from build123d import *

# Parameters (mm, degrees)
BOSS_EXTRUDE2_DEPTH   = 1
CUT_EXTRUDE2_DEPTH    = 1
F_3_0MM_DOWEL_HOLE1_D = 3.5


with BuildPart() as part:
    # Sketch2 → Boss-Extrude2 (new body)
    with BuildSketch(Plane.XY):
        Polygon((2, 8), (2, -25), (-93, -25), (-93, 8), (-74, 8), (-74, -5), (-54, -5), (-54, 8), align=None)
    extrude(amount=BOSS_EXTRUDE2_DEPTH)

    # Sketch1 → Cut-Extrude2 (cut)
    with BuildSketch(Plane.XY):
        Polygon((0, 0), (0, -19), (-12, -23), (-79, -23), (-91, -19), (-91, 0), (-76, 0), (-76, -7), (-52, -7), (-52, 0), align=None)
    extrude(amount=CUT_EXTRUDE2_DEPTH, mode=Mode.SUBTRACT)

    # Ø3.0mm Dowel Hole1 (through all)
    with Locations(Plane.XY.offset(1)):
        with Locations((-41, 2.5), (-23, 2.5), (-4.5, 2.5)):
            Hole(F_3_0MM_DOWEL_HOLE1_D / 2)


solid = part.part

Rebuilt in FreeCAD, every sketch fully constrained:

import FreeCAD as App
import Part
import Sketcher

V = App.Vector
Q = App.Units.Quantity


def add_polygon(sketch, points):
    """Adds a closed chain of lines whose ends are joined by coincident constraints."""
    first, n = sketch.GeometryCount, len(points)
    for a, b in zip(points, points[1:] + points[:1]):
        sketch.addGeometry(Part.LineSegment(App.Vector(*a, 0), App.Vector(*b, 0)), False)
    for i in range(n):
        sketch.addConstraint(Sketcher.Constraint("Coincident", first + i, 2, first + (i + 1) % n, 1))

doc = App.newDocument("Part")
body = doc.addObject("PartDesign::Body", "Body")

# Sketch on XY plane
sketch1 = body.newObject("Sketcher::SketchObject", "Sketch")
sketch1.AttachmentSupport = (doc.getObject("XY_Plane"), [""])
sketch1.MapMode = "FlatFace"
add_polygon(sketch1, [(2, -25), (2, 8), (-54, 8), (-54, -5), (-74, -5), (-74, 8), (-93, 8), (-93, -25)])  # lines 0-7
sketch1.addConstraint(Sketcher.Constraint("Vertical", 0))
sketch1.addConstraint(Sketcher.Constraint("Horizontal", 1))
sketch1.addConstraint(Sketcher.Constraint("Vertical", 2))
sketch1.addConstraint(Sketcher.Constraint("Horizontal", 3))
sketch1.addConstraint(Sketcher.Constraint("Vertical", 4))
sketch1.addConstraint(Sketcher.Constraint("Horizontal", 5))
sketch1.addConstraint(Sketcher.Constraint("Vertical", 6))
sketch1.addConstraint(Sketcher.Constraint("Horizontal", 7))
sketch1.addConstraint(Sketcher.Constraint("Horizontal", 1, 2, 4, 2))
sketch1.addConstraint(Sketcher.Constraint("DistanceX", 1, 2, 1, 1, Q("56 mm")))
sketch1.addConstraint(Sketcher.Constraint("DistanceX", 3, 2, 3, 1, Q("20 mm")))
sketch1.addConstraint(Sketcher.Constraint("DistanceX", 5, 2, 5, 1, Q("19 mm")))
sketch1.addConstraint(Sketcher.Constraint("DistanceY", 0, 1, 0, 2, Q("33 mm")))
sketch1.addConstraint(Sketcher.Constraint("DistanceY", 2, 2, 2, 1, Q("13 mm")))
sketch1.addConstraint(Sketcher.Constraint("DistanceX", -1, 1, 0, 2, Q("2 mm")))
sketch1.addConstraint(Sketcher.Constraint("DistanceY", -1, 1, 0, 2, Q("8 mm")))
pad1 = body.newObject("PartDesign::Pad", "Pad")
pad1.Profile = sketch1
pad1.Length = 1

# Sketch on XY plane
sketch2 = body.newObject("Sketcher::SketchObject", "Sketch001")
sketch2.AttachmentSupport = (doc.getObject("XY_Plane"), [""])
sketch2.MapMode = "FlatFace"
add_polygon(sketch2, [(0, -19), (0, 0), (-52, 0), (-52, -7), (-76, -7), (-76, 0), (-91, 0), (-91, -19), (-79, -23), (-12, -23)])  # lines 0-9
sketch2.addConstraint(Sketcher.Constraint("Vertical", 0))
sketch2.addConstraint(Sketcher.Constraint("Horizontal", 1))
sketch2.addConstraint(Sketcher.Constraint("Vertical", 2))
sketch2.addConstraint(Sketcher.Constraint("Horizontal", 3))
sketch2.addConstraint(Sketcher.Constraint("Vertical", 4))
sketch2.addConstraint(Sketcher.Constraint("Horizontal", 5))
sketch2.addConstraint(Sketcher.Constraint("Vertical", 6))
sketch2.addConstraint(Sketcher.Constraint("Horizontal", 8))
sketch2.addConstraint(Sketcher.Constraint("Coincident", 0, 2, -1, 1))
sketch2.addConstraint(Sketcher.Constraint("PointOnObject", 4, 2, -1))
sketch2.addConstraint(Sketcher.Constraint("Horizontal", 6, 2, 9, 2))
sketch2.addConstraint(Sketcher.Constraint("Equal", 7, 9))
sketch2.addConstraint(Sketcher.Constraint("DistanceX", 1, 2, 1, 1, Q("52 mm")))
sketch2.addConstraint(Sketcher.Constraint("DistanceX", 3, 2, 3, 1, Q("24 mm")))
sketch2.addConstraint(Sketcher.Constraint("DistanceX", 5, 2, 5, 1, Q("15 mm")))
sketch2.addConstraint(Sketcher.Constraint("DistanceX", 8, 1, 8, 2, Q("67 mm")))
sketch2.addConstraint(Sketcher.Constraint("DistanceY", 0, 1, 0, 2, Q("19 mm")))
sketch2.addConstraint(Sketcher.Constraint("DistanceY", 2, 2, 2, 1, Q("7 mm")))
sketch2.addConstraint(Sketcher.Constraint("DistanceY", 7, 2, -1, 1, Q("23 mm")))
pocket1 = body.newObject("PartDesign::Pocket", "Pocket")
pocket1.Profile = sketch2
pocket1.Length = 1
pocket1.Reversed = True

# Sketch on XY plane
sketch3 = body.newObject("Sketcher::SketchObject", "Sketch002")
sketch3.AttachmentSupport = (doc.getObject("XY_Plane"), [""])
sketch3.MapMode = "FlatFace"
sketch3.AttachmentOffset = App.Placement(V(0, 0, 1), App.Rotation())
sketch3.addGeometry(Part.Circle(V(-41, 2.5, 0), V(0, 0, 1), 1.75), False)
sketch3.addGeometry(Part.Circle(V(-23, 2.5, 0), V(0, 0, 1), 1.75), False)
sketch3.addGeometry(Part.Circle(V(-4.5, 2.5, 0), V(0, 0, 1), 1.75), False)
sketch3.addConstraint(Sketcher.Constraint("Equal", 0, 1))
sketch3.addConstraint(Sketcher.Constraint("Equal", 1, 2))
sketch3.addConstraint(Sketcher.Constraint("Horizontal", 0, 3, 1, 3))
sketch3.addConstraint(Sketcher.Constraint("Horizontal", 1, 3, 2, 3))
sketch3.addConstraint(Sketcher.Constraint("Diameter", 0, Q("3.5 mm")))
sketch3.addConstraint(Sketcher.Constraint("DistanceX", 0, 3, -1, 1, Q("41 mm")))
sketch3.addConstraint(Sketcher.Constraint("DistanceX", 1, 3, -1, 1, Q("23 mm")))
sketch3.addConstraint(Sketcher.Constraint("DistanceY", -1, 1, 0, 3, Q("2.5 mm")))
sketch3.addConstraint(Sketcher.Constraint("DistanceX", 2, 3, -1, 1, Q("4.5 mm")))
doc.recompute()
hole = body.newObject("PartDesign::Hole", "Hole")
hole.Profile = sketch3
hole.ThreadType = "None"
hole.Diameter = 3.5
hole.DepthType = "ThroughAll"

doc.recompute()
